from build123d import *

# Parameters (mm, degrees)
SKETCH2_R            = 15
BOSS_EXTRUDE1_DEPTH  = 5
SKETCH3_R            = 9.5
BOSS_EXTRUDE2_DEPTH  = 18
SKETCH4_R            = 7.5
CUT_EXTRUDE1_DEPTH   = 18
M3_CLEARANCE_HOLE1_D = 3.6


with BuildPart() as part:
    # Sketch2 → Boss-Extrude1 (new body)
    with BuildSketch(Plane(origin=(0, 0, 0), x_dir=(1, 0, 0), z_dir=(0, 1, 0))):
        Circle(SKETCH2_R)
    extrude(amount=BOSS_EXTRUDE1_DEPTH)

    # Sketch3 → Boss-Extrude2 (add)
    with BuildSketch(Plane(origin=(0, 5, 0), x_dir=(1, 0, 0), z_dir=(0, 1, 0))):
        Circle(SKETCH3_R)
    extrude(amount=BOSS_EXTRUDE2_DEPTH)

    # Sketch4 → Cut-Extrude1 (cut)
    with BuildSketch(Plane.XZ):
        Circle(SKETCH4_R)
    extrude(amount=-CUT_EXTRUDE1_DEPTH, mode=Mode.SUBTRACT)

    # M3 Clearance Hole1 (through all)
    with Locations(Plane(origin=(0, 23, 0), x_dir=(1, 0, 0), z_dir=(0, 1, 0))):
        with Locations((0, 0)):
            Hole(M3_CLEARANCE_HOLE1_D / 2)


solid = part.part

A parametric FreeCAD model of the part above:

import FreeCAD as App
import Part
import Sketcher

V = App.Vector
Q = App.Units.Quantity

doc = App.newDocument("Part")
params = doc.addObject("Spreadsheet::Sheet", "Params")
for row, (alias, value) in enumerate([
    ("sketch1_diameter", "30 mm"),
    ("pad1_length", "5 mm"),
    ("sketch2_diameter", "19 mm"),
    ("pad2_length", "18 mm"),
    ("sketch3_diameter", "15 mm"),
    ("pocket1_length", "18 mm"),
    ("sketch4_diameter", "3.6 mm"),
    ("hole_diameter", "3.6 mm"),
], start=1):
    params.set(f"A{row}", alias)
    params.set(f"B{row}", "=" + value)
    params.setAlias(f"B{row}", alias)

body = doc.addObject("PartDesign::Body", "Body")

# Sketch on XZ plane
sketch1 = body.newObject("Sketcher::SketchObject", "Sketch")
sketch1.AttachmentSupport = (doc.getObject("XZ_Plane"), [""])
sketch1.MapMode = "FlatFace"
sketch1.addGeometry(Part.Circle(V(0, 0, 0), V(0, 0, 1), 15), False)
sketch1.addConstraint([
    Sketcher.Constraint("Coincident", 0, 3, -1, 1),
    Sketcher.Constraint("Diameter", 0, Q("30 mm")),
])
sketch1.setExpression("Constraints[1]", "Params.sketch1_diameter")
pad1 = body.newObject("PartDesign::Pad", "Pad")
pad1.Profile = sketch1
pad1.setExpression("Length", "Params.pad1_length")
pad1.Reversed = True

# Sketch on XZ plane
sketch2 = body.newObject("Sketcher::SketchObject", "Sketch001")
sketch2.AttachmentSupport = (doc.getObject("XZ_Plane"), [""])
sketch2.MapMode = "FlatFace"
sketch2.AttachmentOffset = App.Placement(V(0, 0, -5), App.Rotation())
sketch2.addGeometry(Part.Circle(V(0, 0, 0), V(0, 0, 1), 10), False)
sketch2.addConstraint([
    Sketcher.Constraint("Coincident", 0, 3, -1, 1),
    Sketcher.Constraint("Diameter", 0, Q("19 mm")),
])
sketch2.setExpression("Constraints[1]", "Params.sketch2_diameter")
pad2 = body.newObject("PartDesign::Pad", "Pad001")
pad2.Profile = sketch2
pad2.setExpression("Length", "Params.pad2_length")
pad2.Reversed = True

# Sketch on XZ plane
sketch3 = body.newObject("Sketcher::SketchObject", "Sketch002")
sketch3.AttachmentSupport = (doc.getObject("XZ_Plane"), [""])
sketch3.MapMode = "FlatFace"
sketch3.addGeometry(Part.Circle(V(0, 0, 0), V(0, 0, 1), 8), False)
sketch3.addConstraint([
    Sketcher.Constraint("Coincident", 0, 3, -1, 1),
    Sketcher.Constraint("Diameter", 0, Q("15 mm")),
])
sketch3.setExpression("Constraints[1]", "Params.sketch3_diameter")
pocket1 = body.newObject("PartDesign::Pocket", "Pocket")
pocket1.Profile = sketch3
pocket1.setExpression("Length", "Params.pocket1_length")

# Sketch on XZ plane
sketch4 = body.newObject("Sketcher::SketchObject", "Sketch003")
sketch4.AttachmentSupport = (doc.getObject("XZ_Plane"), [""])
sketch4.MapMode = "FlatFace"
sketch4.AttachmentOffset = App.Placement(V(0, 0, -23), App.Rotation())
sketch4.addGeometry(Part.Circle(V(0, 0, 0), V(0, 0, 1), 1.8), False)
sketch4.addConstraint([
    Sketcher.Constraint("Coincident", 0, 3, -1, 1),
    Sketcher.Constraint("Diameter", 0, Q("3.6 mm")),
])
sketch4.setExpression("Constraints[1]", "Params.sketch4_diameter")
doc.recompute()
hole = body.newObject("PartDesign::Hole", "Hole")
hole.Profile = sketch4
hole.ThreadType = "None"
hole.setExpression("Diameter", "Params.hole_diameter")
hole.DepthType = "ThroughAll"
hole.Reversed = True

doc.recompute()
